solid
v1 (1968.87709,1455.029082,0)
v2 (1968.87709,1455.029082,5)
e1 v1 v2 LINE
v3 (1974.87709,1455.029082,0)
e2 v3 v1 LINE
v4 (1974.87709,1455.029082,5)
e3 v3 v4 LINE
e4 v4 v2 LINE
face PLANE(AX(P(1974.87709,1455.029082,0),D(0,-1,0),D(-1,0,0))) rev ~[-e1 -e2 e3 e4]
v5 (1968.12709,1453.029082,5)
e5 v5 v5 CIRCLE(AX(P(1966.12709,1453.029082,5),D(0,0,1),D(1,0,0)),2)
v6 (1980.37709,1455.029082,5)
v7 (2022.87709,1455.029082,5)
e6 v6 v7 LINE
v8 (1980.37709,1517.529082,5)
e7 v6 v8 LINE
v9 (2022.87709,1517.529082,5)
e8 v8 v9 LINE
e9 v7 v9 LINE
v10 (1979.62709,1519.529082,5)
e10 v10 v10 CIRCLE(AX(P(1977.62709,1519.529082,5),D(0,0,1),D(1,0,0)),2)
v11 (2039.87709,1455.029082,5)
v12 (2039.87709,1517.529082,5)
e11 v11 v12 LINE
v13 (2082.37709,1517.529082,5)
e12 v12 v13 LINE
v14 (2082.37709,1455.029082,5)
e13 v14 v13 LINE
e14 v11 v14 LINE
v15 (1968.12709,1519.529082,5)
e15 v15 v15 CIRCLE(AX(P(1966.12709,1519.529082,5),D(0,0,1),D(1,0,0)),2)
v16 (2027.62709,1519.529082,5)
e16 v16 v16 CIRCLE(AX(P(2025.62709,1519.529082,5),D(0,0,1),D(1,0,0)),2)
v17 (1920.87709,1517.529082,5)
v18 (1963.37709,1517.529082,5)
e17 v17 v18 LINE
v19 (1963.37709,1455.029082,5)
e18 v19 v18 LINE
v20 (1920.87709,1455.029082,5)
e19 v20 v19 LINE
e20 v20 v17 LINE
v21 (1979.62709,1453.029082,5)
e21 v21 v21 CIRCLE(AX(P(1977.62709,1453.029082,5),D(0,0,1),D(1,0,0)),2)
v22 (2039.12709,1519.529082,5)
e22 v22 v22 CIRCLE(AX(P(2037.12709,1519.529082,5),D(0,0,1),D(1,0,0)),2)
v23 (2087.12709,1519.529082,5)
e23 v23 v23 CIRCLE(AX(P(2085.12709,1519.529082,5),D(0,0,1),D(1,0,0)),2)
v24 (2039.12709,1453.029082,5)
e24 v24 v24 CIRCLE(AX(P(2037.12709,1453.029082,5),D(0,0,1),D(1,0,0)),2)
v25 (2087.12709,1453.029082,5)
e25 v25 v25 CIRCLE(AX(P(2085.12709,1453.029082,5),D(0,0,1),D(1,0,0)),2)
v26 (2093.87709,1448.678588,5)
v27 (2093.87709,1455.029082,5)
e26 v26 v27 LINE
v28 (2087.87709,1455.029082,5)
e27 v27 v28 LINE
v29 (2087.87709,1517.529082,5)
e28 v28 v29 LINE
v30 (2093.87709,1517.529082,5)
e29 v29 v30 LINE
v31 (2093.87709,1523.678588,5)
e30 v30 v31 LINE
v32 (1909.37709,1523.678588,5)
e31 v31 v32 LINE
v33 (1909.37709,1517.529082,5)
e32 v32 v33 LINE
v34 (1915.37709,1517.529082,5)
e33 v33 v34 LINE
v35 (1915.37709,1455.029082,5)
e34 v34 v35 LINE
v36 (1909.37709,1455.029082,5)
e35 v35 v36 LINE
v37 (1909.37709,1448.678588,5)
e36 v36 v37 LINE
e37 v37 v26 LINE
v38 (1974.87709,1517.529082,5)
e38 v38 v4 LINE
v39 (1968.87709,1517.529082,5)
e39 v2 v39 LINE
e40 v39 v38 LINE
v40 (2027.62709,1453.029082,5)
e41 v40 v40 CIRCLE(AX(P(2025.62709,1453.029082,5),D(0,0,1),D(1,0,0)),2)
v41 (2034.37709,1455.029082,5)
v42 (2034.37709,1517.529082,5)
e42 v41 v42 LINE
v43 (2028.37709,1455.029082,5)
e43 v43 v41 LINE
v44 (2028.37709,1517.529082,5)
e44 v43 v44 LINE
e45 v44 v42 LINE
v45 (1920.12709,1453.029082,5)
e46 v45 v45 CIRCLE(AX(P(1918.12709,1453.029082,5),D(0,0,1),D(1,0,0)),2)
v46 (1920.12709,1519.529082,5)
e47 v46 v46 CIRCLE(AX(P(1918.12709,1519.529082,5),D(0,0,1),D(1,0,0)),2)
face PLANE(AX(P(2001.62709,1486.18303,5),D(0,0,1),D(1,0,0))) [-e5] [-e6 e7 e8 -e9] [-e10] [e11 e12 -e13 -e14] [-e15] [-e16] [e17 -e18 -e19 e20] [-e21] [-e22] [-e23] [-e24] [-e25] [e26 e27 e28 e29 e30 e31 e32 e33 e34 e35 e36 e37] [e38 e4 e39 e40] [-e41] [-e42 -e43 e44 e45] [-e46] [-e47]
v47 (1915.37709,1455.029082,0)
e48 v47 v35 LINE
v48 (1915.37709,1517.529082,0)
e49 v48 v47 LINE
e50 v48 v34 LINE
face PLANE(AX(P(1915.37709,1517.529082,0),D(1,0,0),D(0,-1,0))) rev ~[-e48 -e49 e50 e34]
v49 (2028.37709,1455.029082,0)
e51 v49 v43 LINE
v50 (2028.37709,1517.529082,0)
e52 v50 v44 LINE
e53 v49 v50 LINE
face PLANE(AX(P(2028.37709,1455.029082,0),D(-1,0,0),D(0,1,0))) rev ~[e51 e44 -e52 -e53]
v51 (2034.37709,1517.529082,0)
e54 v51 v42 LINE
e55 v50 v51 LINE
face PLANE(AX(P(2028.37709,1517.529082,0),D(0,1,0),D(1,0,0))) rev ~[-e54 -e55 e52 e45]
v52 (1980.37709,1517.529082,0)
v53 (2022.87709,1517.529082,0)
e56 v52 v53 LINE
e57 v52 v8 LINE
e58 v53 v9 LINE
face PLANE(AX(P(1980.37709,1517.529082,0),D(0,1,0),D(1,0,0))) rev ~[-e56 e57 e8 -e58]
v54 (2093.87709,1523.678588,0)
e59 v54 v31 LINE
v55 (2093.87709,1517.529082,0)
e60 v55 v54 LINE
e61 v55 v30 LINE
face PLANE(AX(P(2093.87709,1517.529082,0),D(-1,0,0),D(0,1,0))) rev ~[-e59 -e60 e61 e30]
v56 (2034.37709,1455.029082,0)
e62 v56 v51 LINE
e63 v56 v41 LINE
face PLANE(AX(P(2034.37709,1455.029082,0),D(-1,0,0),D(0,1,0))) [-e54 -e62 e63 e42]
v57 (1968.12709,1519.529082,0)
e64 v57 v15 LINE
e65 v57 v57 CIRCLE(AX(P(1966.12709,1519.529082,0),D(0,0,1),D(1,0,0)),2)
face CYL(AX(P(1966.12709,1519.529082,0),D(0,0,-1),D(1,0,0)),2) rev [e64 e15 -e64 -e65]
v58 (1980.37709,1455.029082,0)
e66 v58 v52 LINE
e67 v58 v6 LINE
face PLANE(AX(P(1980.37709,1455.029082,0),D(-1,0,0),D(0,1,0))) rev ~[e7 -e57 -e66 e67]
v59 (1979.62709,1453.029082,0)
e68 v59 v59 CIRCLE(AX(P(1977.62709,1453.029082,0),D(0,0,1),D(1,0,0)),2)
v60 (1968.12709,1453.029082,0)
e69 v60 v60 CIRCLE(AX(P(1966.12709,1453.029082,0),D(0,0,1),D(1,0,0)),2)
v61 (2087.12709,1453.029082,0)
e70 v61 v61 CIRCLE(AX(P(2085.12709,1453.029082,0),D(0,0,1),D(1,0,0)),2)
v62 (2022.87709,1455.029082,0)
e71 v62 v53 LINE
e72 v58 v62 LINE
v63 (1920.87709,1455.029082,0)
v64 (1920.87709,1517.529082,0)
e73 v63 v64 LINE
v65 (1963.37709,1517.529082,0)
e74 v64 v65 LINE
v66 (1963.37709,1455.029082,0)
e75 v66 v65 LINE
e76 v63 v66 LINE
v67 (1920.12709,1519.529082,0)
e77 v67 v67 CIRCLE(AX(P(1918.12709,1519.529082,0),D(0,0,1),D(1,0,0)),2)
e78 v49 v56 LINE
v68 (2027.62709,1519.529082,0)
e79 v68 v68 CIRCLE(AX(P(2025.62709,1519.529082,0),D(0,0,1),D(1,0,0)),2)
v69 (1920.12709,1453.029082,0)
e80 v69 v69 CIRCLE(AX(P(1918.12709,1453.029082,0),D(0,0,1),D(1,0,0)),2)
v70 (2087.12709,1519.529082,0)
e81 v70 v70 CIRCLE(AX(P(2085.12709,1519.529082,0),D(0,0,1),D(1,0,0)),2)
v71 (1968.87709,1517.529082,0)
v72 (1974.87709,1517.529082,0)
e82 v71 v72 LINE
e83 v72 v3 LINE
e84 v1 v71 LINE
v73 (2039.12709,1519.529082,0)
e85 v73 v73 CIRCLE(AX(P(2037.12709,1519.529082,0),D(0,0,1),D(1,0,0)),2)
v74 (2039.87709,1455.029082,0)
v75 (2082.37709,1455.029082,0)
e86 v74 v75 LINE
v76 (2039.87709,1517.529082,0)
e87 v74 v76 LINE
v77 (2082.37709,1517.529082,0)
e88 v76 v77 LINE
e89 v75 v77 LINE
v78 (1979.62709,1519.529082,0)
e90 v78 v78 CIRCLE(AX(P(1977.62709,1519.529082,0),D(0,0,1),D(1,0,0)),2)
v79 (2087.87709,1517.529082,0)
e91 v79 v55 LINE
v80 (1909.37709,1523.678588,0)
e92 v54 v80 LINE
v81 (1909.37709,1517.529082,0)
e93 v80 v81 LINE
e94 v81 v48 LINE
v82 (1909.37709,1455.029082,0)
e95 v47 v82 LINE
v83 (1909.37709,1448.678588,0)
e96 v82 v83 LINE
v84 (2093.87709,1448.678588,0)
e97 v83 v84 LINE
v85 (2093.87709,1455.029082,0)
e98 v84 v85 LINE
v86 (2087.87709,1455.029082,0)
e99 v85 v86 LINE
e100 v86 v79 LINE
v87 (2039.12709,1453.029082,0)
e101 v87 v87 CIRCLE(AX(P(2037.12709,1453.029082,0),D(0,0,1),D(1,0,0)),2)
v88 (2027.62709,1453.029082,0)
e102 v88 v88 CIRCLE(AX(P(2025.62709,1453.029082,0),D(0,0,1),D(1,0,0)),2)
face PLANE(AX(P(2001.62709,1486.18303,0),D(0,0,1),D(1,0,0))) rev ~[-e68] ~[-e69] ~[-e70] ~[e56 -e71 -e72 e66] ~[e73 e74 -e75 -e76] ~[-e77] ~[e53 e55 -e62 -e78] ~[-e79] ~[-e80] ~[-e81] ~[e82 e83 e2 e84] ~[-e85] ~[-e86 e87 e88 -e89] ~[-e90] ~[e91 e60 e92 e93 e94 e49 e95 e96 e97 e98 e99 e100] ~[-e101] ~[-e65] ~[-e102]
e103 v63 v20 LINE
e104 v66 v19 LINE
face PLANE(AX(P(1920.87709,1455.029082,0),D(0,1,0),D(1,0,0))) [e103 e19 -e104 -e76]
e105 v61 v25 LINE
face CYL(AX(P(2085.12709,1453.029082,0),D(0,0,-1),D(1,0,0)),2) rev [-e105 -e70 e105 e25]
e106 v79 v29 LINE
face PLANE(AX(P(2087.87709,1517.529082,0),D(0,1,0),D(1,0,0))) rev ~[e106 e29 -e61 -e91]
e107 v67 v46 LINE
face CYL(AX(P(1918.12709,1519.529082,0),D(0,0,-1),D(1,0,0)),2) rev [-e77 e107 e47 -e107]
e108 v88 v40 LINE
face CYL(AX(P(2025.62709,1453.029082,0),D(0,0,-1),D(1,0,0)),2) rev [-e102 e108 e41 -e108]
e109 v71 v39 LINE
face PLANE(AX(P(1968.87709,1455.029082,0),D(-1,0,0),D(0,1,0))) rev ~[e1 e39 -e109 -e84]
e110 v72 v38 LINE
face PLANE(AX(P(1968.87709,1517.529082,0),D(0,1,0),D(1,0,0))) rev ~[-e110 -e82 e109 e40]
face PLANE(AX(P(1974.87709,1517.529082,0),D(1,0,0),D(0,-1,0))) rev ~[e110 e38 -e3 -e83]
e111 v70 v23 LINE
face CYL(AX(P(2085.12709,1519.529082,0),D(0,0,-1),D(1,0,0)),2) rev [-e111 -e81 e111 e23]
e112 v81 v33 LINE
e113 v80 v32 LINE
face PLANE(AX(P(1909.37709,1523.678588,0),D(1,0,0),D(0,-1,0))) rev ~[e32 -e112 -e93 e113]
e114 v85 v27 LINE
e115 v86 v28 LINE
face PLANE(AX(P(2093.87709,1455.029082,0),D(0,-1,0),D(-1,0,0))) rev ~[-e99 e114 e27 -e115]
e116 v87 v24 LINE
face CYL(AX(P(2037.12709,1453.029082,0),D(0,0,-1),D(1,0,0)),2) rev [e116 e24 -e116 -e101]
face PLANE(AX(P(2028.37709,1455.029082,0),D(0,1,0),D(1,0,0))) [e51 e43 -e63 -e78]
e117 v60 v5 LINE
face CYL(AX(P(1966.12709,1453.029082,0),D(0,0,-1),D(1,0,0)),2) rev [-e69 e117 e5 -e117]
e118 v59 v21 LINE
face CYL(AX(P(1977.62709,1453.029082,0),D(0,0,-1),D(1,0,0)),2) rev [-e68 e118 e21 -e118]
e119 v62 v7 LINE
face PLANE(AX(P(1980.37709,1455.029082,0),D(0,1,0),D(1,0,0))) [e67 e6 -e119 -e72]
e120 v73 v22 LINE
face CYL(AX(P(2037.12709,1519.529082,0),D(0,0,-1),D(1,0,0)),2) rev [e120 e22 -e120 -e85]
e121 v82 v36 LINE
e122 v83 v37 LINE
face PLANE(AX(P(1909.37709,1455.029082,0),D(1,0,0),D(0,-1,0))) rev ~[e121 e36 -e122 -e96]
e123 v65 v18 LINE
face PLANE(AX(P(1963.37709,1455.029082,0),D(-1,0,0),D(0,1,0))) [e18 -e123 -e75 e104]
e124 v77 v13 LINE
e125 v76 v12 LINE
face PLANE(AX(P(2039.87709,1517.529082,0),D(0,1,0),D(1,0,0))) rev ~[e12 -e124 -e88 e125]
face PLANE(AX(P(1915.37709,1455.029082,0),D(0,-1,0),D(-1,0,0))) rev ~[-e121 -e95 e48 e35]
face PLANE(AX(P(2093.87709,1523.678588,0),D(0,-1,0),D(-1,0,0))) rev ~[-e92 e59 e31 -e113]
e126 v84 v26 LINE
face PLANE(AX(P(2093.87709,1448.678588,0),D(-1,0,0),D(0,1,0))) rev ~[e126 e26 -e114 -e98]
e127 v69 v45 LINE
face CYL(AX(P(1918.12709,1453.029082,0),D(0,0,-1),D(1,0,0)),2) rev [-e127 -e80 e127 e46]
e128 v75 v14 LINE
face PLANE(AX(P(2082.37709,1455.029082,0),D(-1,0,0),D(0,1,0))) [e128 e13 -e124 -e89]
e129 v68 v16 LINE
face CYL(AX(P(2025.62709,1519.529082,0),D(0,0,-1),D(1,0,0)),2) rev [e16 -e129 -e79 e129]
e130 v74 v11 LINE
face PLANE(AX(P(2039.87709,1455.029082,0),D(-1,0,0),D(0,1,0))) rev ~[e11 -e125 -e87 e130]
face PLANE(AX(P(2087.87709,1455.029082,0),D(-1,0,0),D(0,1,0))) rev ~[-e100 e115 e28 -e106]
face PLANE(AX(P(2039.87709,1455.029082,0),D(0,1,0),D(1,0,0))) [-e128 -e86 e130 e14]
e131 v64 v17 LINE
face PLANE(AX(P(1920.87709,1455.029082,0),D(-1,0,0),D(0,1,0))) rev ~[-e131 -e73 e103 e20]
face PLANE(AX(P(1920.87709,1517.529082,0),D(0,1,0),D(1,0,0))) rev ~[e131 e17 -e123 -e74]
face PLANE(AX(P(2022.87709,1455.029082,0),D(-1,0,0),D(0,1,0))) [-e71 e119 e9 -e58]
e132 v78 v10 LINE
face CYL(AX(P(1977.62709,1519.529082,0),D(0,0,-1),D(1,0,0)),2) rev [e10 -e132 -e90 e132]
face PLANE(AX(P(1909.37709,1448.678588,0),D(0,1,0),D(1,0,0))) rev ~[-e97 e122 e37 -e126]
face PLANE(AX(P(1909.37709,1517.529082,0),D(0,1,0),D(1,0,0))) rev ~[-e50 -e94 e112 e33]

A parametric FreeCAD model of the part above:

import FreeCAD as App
import Part
import Sketcher

V = App.Vector
Q = App.Units.Quantity


def add_polygon(sketch, points):
    """Adds a closed chain of lines whose ends are joined by coincident constraints."""
    first, n = sketch.GeometryCount, len(points)
    for a, b in zip(points, points[1:] + points[:1]):
        sketch.addGeometry(Part.LineSegment(App.Vector(*a, 0), App.Vector(*b, 0)), False)
    for i in range(n):
        sketch.addConstraint(Sketcher.Constraint("Coincident", first + i, 2, first + (i + 1) % n, 1))

doc = App.newDocument("Part")
params = doc.addObject("Spreadsheet::Sheet", "Params")
for row, (alias, value) in enumerate([
    ("sketch1_diameter", "4 mm"),
    ("sketch1_width", "6 mm"),
    ("sketch1_width2", "184.5 mm"),
    ("sketch1_width3", "42.5 mm"),
    ("sketch1_height", "62.5 mm"),
    ("pad1_length", "5 mm"),
], start=1):
    params.set(f"A{row}", alias)
    params.set(f"B{row}", "=" + value)
    params.setAlias(f"B{row}", alias)

body = doc.addObject("PartDesign::Body", "Body")

# Sketch on XY plane
sketch1 = doc.addObject("Sketcher::SketchObject", "Sketch")
body.addObject(sketch1)
sketch1.AttachmentSupport = (doc.XY_Plane, [""])
sketch1.MapMode = "FlatFace"
add_polygon(sketch1, [(1909.4, 1448.7), (2093.9, 1448.7), (2093.9, 1455), (2087.9, 1455), (2087.9, 1517.5), (2093.9, 1517.5), (2093.9, 1523.7), (1909.4, 1523.7), (1909.4, 1517.5), (1915.4, 1517.5), (1915.4, 1455), (1909.4, 1455)])  # lines 0-11
sketch1.addGeometry(Part.Circle(V(1918.1, 1453, 0), V(0, 0, 1), 2), False)  # 12
sketch1.addGeometry(Part.Circle(V(1966.1, 1453, 0), V(0, 0, 1), 2), False)  # 13
sketch1.addGeometry(Part.Circle(V(1977.6, 1453, 0), V(0, 0, 1), 2), False)  # 14
sketch1.addGeometry(Part.Circle(V(2025.6, 1453, 0), V(0, 0, 1), 2), False)  # 15
sketch1.addGeometry(Part.Circle(V(2037.1, 1453, 0), V(0, 0, 1), 2), False)  # 16
sketch1.addGeometry(Part.Circle(V(2085.1, 1453, 0), V(0, 0, 1), 2), False)  # 17
add_polygon(sketch1, [(1963.4, 1455), (1920.9, 1455), (1920.9, 1517.5), (1963.4, 1517.5)])  # lines 18-21
add_polygon(sketch1, [(1974.9, 1455), (1968.9, 1455), (1968.9, 1517.5), (1974.9, 1517.5)])  # lines 22-25
sketch1.addGeometry(Part.Circle(V(1918.1, 1519.5, 0), V(0, 0, 1), 2), False)  # 26
sketch1.addGeometry(Part.Circle(V(1966.1, 1519.5, 0), V(0, 0, 1), 2), False)  # 27
sketch1.addGeometry(Part.Circle(V(1977.6, 1519.5, 0), V(0, 0, 1), 2), False)  # 28
add_polygon(sketch1, [(2022.9, 1455), (1980.4, 1455), (1980.4, 1517.5), (2022.9, 1517.5)])  # lines 29-32
add_polygon(sketch1, [(2034.4, 1455), (2028.4, 1455), (2028.4, 1517.5), (2034.4, 1517.5)])  # lines 33-36
add_polygon(sketch1, [(2082.4, 1455), (2039.9, 1455), (2039.9, 1517.5), (2082.4, 1517.5)])  # lines 37-40
sketch1.addGeometry(Part.Circle(V(2025.6, 1519.5, 0), V(0, 0, 1), 2), False)  # 41
sketch1.addGeometry(Part.Circle(V(2037.1, 1519.5, 0), V(0, 0, 1), 2), False)  # 42
sketch1.addGeometry(Part.Circle(V(2085.1, 1519.5, 0), V(0, 0, 1), 2), False)  # 43
sketch1.addConstraint([
    Sketcher.Constraint("Horizontal", 0),
    Sketcher.Constraint("Vertical", 1),
    Sketcher.Constraint("Horizontal", 2),
    Sketcher.Constraint("Vertical", 3),
    Sketcher.Constraint("Horizontal", 4),
    Sketcher.Constraint("Vertical", 5),
    Sketcher.Constraint("Horizontal", 6),
    Sketcher.Constraint("Vertical", 7),
    Sketcher.Constraint("Horizontal", 8),
    Sketcher.Constraint("Vertical", 9),
    Sketcher.Constraint("Horizontal", 10),
    Sketcher.Constraint("Vertical", 11),
    Sketcher.Constraint("Horizontal", 18),
    Sketcher.Constraint("Vertical", 19),
    Sketcher.Constraint("Horizontal", 20),
    Sketcher.Constraint("Vertical", 21),
    Sketcher.Constraint("Horizontal", 22),
    Sketcher.Constraint("Vertical", 23),
    Sketcher.Constraint("Horizontal", 24),
    Sketcher.Constraint("Vertical", 25),
    Sketcher.Constraint("Horizontal", 29),
    Sketcher.Constraint("Vertical", 30),
    Sketcher.Constraint("Horizontal", 31),
    Sketcher.Constraint("Vertical", 32),
    Sketcher.Constraint("Horizontal", 33),
    Sketcher.Constraint("Vertical", 34),
    Sketcher.Constraint("Horizontal", 35),
    Sketcher.Constraint("Vertical", 36),
    Sketcher.Constraint("Horizontal", 37),
    Sketcher.Constraint("Vertical", 38),
    Sketcher.Constraint("Horizontal", 39),
    Sketcher.Constraint("Vertical", 40),
    Sketcher.Constraint("Equal", 12, 13),
    Sketcher.Constraint("Equal", 13, 14),
    Sketcher.Constraint("Equal", 14, 15),
    Sketcher.Constraint("Equal", 15, 16),
    Sketcher.Constraint("Equal", 16, 17),
    Sketcher.Constraint("Equal", 17, 26),
    Sketcher.Constraint("Equal", 26, 27),
    Sketcher.Constraint("Equal", 27, 28),
    Sketcher.Constraint("Equal", 28, 41),
    Sketcher.Constraint("Equal", 41, 42),
    Sketcher.Constraint("Equal", 42, 43),
    Sketcher.Constraint("Horizontal", 12, 3, 13, 3),
    Sketcher.Constraint("Horizontal", 13, 3, 14, 3),
    Sketcher.Constraint("Horizontal", 14, 3, 15, 3),
    Sketcher.Constraint("Horizontal", 15, 3, 16, 3),
    Sketcher.Constraint("Horizontal", 16, 3, 17, 3),
    Sketcher.Constraint("Horizontal", 26, 3, 27, 3),
    Sketcher.Constraint("Horizontal", 27, 3, 28, 3),
    Sketcher.Constraint("Horizontal", 28, 3, 41, 3),
    Sketcher.Constraint("Horizontal", 41, 3, 42, 3),
    Sketcher.Constraint("Horizontal", 42, 3, 43, 3),
    Sketcher.Constraint("Horizontal", 4, 2, 7, 2),
    Sketcher.Constraint("Horizontal", 2, 2, 9, 2),
    Sketcher.Constraint("Horizontal", 10, 2, 18, 2),
    Sketcher.Constraint("Horizontal", 8, 2, 19, 2),
    Sketcher.Constraint("Horizontal", 21, 2, 22, 2),
    Sketcher.Constraint("Horizontal", 20, 2, 23, 2),
    Sketcher.Constraint("Horizontal", 25, 2, 29, 2),
    Sketcher.Constraint("Horizontal", 24, 2, 30, 2),
    Sketcher.Constraint("Horizontal", 32, 2, 33, 2),
    Sketcher.Constraint("Horizontal", 31, 2, 34, 2),
    Sketcher.Constraint("Horizontal", 36, 2, 37, 2),
    Sketcher.Constraint("Horizontal", 35, 2, 38, 2),
    Sketcher.Constraint("Vertical", 12, 3, 26, 3),
    Sketcher.Constraint("Vertical", 13, 3, 27, 3),
    Sketcher.Constraint("Vertical", 14, 3, 28, 3),
    Sketcher.Constraint("Vertical", 15, 3, 41, 3),
    Sketcher.Constraint("Vertical", 16, 3, 42, 3),
    Sketcher.Constraint("Vertical", 17, 3, 43, 3),
    Sketcher.Constraint("Vertical", 1, 2, 4, 2),
    Sketcher.Constraint("Vertical", 7, 2, 10, 2),
    Sketcher.Constraint("Equal", 4, 8),
    Sketcher.Constraint("Equal", 10, 22),
    Sketcher.Constraint("Equal", 20, 29),
    Sketcher.Constraint("Equal", 24, 33),
    Sketcher.Constraint("Equal", 31, 37),
    Sketcher.Constraint("Diameter", 12, Q("4 mm")),
    Sketcher.Constraint("DistanceX", 2, 2, 2, 1, Q("6 mm")),
    Sketcher.Constraint("DistanceX", 0, 1, 0, 2, Q("184.5 mm")),
    Sketcher.Constraint("DistanceX", 18, 2, 18, 1, Q("42.5 mm")),
    Sketcher.Constraint("DistanceY", 3, 1, 3, 2, Q("62.5 mm")),
    Sketcher.Constraint("DistanceX", 12, 3, 13, 3, Q("48 mm")),
    Sketcher.Constraint("DistanceX", 14, 3, 15, 3, Q("48 mm")),
    Sketcher.Constraint("DistanceX", 13, 3, 16, 3, Q("71 mm")),
    Sketcher.Constraint("DistanceX", 16, 3, 17, 3, Q("48 mm")),
    Sketcher.Constraint("DistanceY", 17, 3, 1, 2, Q("2 mm")),
    Sketcher.Constraint("DistanceY", 3, 2, 43, 3, Q("2 mm")),
    Sketcher.Constraint("DistanceX", 8, 2, 20, 2, Q("48 mm")),
    Sketcher.Constraint("DistanceX", 18, 2, 22, 2, Q("48 mm")),
    Sketcher.Constraint("DistanceX", 21, 2, 29, 2, Q("17 mm")),
    Sketcher.Constraint("DistanceX", 29, 2, 33, 2, Q("48 mm")),
    Sketcher.Constraint("DistanceX", 32, 2, 37, 2, Q("17 mm")),
    Sketcher.Constraint("DistanceX", 13, 3, 14, 3, Q("11.5 mm")),
    Sketcher.Constraint("DistanceX", 17, 3, 0, 2, Q("8.75 mm")),
    Sketcher.Constraint("DistanceY", 1, 1, 1, 2, Q("6.350494 mm")),
    Sketcher.Constraint("DistanceY", 5, 1, 5, 2, Q("6.149506 mm")),
    Sketcher.Constraint("DistanceX", -1, 1, 12, 3, Q("1918.12709 mm")),
    Sketcher.Constraint("DistanceY", -1, 1, 0, 2, Q("1448.678588 mm")),
])
sketch1.setExpression("Constraints[110]", "Params.sketch1_diameter")
sketch1.setExpression("Constraints[111]", "Params.sketch1_width")
sketch1.setExpression("Constraints[112]", "Params.sketch1_width2")
sketch1.setExpression("Constraints[113]", "Params.sketch1_width3")
sketch1.setExpression("Constraints[114]", "Params.sketch1_height")
pad1 = doc.addObject("PartDesign::Pad", "Pad")
body.addObject(pad1)
pad1.Profile = sketch1
pad1.setExpression("Length", "Params.pad1_length")

doc.recompute()
